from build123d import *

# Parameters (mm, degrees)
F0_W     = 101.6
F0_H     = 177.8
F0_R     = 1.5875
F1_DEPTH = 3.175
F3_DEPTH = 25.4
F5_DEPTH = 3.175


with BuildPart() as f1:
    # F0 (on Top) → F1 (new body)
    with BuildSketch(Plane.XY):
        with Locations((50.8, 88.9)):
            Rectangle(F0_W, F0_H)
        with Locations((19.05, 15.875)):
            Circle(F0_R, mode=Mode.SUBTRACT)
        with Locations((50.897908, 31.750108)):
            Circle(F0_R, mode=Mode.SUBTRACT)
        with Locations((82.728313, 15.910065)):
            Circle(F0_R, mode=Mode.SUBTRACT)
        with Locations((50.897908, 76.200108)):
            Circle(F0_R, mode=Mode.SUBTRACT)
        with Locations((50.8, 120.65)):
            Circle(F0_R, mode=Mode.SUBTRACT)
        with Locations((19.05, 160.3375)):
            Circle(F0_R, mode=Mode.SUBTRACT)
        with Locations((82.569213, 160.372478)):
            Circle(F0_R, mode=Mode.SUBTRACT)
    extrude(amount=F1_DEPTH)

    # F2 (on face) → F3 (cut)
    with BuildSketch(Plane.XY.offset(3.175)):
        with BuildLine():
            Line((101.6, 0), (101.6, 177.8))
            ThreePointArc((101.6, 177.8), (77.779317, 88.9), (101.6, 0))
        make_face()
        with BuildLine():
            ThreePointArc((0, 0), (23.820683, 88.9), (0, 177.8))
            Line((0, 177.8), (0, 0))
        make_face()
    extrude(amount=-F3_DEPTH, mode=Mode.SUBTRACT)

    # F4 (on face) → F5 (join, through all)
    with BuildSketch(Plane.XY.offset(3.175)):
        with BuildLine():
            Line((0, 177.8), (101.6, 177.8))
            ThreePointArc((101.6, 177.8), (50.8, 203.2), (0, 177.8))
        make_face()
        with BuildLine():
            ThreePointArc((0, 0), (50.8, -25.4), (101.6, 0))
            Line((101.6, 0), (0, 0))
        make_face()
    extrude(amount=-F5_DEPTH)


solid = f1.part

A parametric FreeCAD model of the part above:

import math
import FreeCAD as App
import Part
import Sketcher
Q = App.Units.Quantity


def add_polygon(sketch, points):
    """Adds a closed chain of lines whose ends are joined by coincident constraints."""
    first, n = sketch.GeometryCount, len(points)
    for a, b in zip(points, points[1:] + points[:1]):
        sketch.addGeometry(Part.LineSegment(App.Vector(*a, 0), App.Vector(*b, 0)), False)
    for i in range(n):
        sketch.addConstraint(Sketcher.Constraint("Coincident", first + i, 2, first + (i + 1) % n, 1))

doc = App.newDocument("Part")
body = doc.addObject("PartDesign::Body", "Body")

sketch1 = body.newObject("Sketcher::SketchObject", "Sketch")
sketch1.AttachmentSupport = (doc.getObject("XY_Plane"), [""])
sketch1.MapMode = "FlatFace"
add_polygon(sketch1, [(0, 177.8), (0, 0), (101.6, 0), (101.6, 177.8)])
sketch1.addGeometry(Part.Circle(App.Vector(19.1, 15.9, 0), App.Vector(0, 0, 1), 1.6), False)
sketch1.addGeometry(Part.Circle(App.Vector(50.9, 31.8, 0), App.Vector(0, 0, 1), 1.6), False)
sketch1.addGeometry(Part.Circle(App.Vector(82.7, 15.9, 0), App.Vector(0, 0, 1), 1.6), False)
sketch1.addGeometry(Part.Circle(App.Vector(50.9, 76.2, 0), App.Vector(0, 0, 1), 1.6), False)
sketch1.addGeometry(Part.Circle(App.Vector(50.8, 120.7, 0), App.Vector(0, 0, 1), 1.6), False)
sketch1.addGeometry(Part.Circle(App.Vector(19.1, 160.3, 0), App.Vector(0, 0, 1), 1.6), False)
sketch1.addGeometry(Part.Circle(App.Vector(82.6, 160.4, 0), App.Vector(0, 0, 1), 1.6), False)
sketch1.addConstraint(Sketcher.Constraint("Vertical", 0))
sketch1.addConstraint(Sketcher.Constraint("Horizontal", 1))
sketch1.addConstraint(Sketcher.Constraint("Vertical", 2))
sketch1.addConstraint(Sketcher.Constraint("Horizontal", 3))
sketch1.addConstraint(Sketcher.Constraint("Coincident", 0, 2, -1, 1))
sketch1.addConstraint(Sketcher.Constraint("Equal", 4, 5))
sketch1.addConstraint(Sketcher.Constraint("Equal", 5, 6))
sketch1.addConstraint(Sketcher.Constraint("Equal", 6, 7))
sketch1.addConstraint(Sketcher.Constraint("Equal", 7, 8))
sketch1.addConstraint(Sketcher.Constraint("Equal", 8, 9))
sketch1.addConstraint(Sketcher.Constraint("Equal", 9, 10))
sketch1.addConstraint(Sketcher.Constraint("Vertical", 5, 3, 7, 3))
sketch1.addConstraint(Sketcher.Constraint("Vertical", 4, 3, 9, 3))
sketch1.addConstraint(Sketcher.Constraint("DistanceX", 1, 1, 1, 2, Q("4 in")))
sketch1.addConstraint(Sketcher.Constraint("DistanceY", 0, 2, 0, 1, Q("7 in")))
sketch1.addConstraint(Sketcher.Constraint("Diameter", 4, Q("0.125 in")))
sketch1.addConstraint(Sketcher.Constraint("DistanceX", -1, 1, 8, 3, Q("2 in")))
sketch1.addConstraint(Sketcher.Constraint("DistanceX", -1, 1, 4, 3, Q("0.75 in")))
sketch1.addConstraint(Sketcher.Constraint("DistanceY", -1, 1, 8, 3, Q("4.75 in")))
sketch1.addConstraint(Sketcher.Constraint("DistanceY", 5, 3, 7, 3, Q("1.75 in")))
sketch1.addConstraint(Sketcher.Constraint("DistanceY", -1, 1, 4, 3, Q("0.625 in")))
sketch1.addConstraint(Sketcher.Constraint("DistanceY", -1, 1, 9, 3, Q("6.3125 in")))
sketch1.addConstraint(Sketcher.Constraint("DistanceX", 10, 3, 6, 3, 0.1591))
sketch1.addConstraint(Sketcher.Constraint("DistanceY", -1, 1, 5, 3, 31.750108))
sketch1.addConstraint(Sketcher.Constraint("DistanceY", -1, 1, 10, 3, 160.372478))
sketch1.addConstraint(Sketcher.Constraint("DistanceX", 4, 3, 5, 3, 31.847908))
sketch1.addConstraint(Sketcher.Constraint("DistanceX", -1, 1, 6, 3, 82.728313))
sketch1.addConstraint(Sketcher.Constraint("DistanceY", -1, 1, 6, 3, 15.910065))
pad1 = body.newObject("PartDesign::Pad", "Pad")
pad1.Profile = sketch1
pad1.Length = Q("0.125 in")

sketch2 = body.newObject("Sketcher::SketchObject", "Sketch001")
sketch2.AttachmentSupport = (doc.getObject("XY_Plane"), [""])
sketch2.MapMode = "FlatFace"
sketch2.AttachmentOffset = App.Placement(App.Vector(0, 0, 0.125 * 25.4), App.Rotation())
sketch2.addGeometry(Part.LineSegment(App.Vector(102, 0, 0), App.Vector(102, 178, 0)), False)
sketch2.addGeometry(Part.ArcOfCircle(Part.Circle(App.Vector(256, 89, 0), App.Vector(0, 0, 1), 178), math.radians(150), math.radians(210)), False)
sketch2.addGeometry(Part.ArcOfCircle(Part.Circle(App.Vector(-154, 89, 0), App.Vector(0, 0, 1), 178), math.radians(-30), math.radians(30)), False)
sketch2.addGeometry(Part.LineSegment(App.Vector(0, 178, 0), App.Vector(0, 0, 0)), False)
sketch2.addConstraint(Sketcher.Constraint("Coincident", 0, 1, 1, 2))
sketch2.addConstraint(Sketcher.Constraint("Coincident", 1, 1, 0, 2))
sketch2.addConstraint(Sketcher.Constraint("Coincident", 2, 1, 3, 2))
sketch2.addConstraint(Sketcher.Constraint("Coincident", 3, 1, 2, 2))
sketch2.addConstraint(Sketcher.Constraint("Vertical", 0))
sketch2.addConstraint(Sketcher.Constraint("Vertical", 3))
sketch2.addConstraint(Sketcher.Constraint("Coincident", 2, 1, -1, 1))
sketch2.addConstraint(Sketcher.Constraint("Equal", 1, 2))
sketch2.addConstraint(Sketcher.Constraint("PointOnObject", 0, 1, -1))
sketch2.addConstraint(Sketcher.Constraint("Horizontal", 1, 3, 2, 3))
sketch2.addConstraint(Sketcher.Constraint("Radius", 1, Q("7.0000001 in")))
sketch2.addConstraint(Sketcher.Constraint("DistanceY", 0, 1, 0, 2, Q("7 in")))
sketch2.addConstraint(Sketcher.Constraint("DistanceX", -1, 1, 0, 1, Q("4 in")))
pocket1 = body.newObject("PartDesign::Pocket", "Pocket")
pocket1.Profile = sketch2
pocket1.Length = Q("1 in")

sketch3 = body.newObject("Sketcher::SketchObject", "Sketch002")
sketch3.AttachmentSupport = (doc.getObject("XY_Plane"), [""])
sketch3.MapMode = "FlatFace"
sketch3.AttachmentOffset = App.Placement(App.Vector(0, 0, 0.125 * 25.4), App.Rotation())
sketch3.addGeometry(Part.LineSegment(App.Vector(0, 178, 0), App.Vector(102, 178, 0)), False)
sketch3.addGeometry(Part.ArcOfCircle(Part.Circle(App.Vector(51, 140, 0), App.Vector(0, 0, 1), 64), math.radians(37), math.radians(143)), False)
sketch3.addGeometry(Part.ArcOfCircle(Part.Circle(App.Vector(51, 38, 0), App.Vector(0, 0, 1), 64), math.radians(-143), math.radians(-37)), False)
sketch3.addGeometry(Part.LineSegment(App.Vector(102, 0, 0), App.Vector(0, 0, 0)), False)
sketch3.addConstraint(Sketcher.Constraint("Coincident", 0, 1, 1, 2))
sketch3.addConstraint(Sketcher.Constraint("Coincident", 1, 1, 0, 2))
sketch3.addConstraint(Sketcher.Constraint("Coincident", 2, 1, 3, 2))
sketch3.addConstraint(Sketcher.Constraint("Coincident", 3, 1, 2, 2))
sketch3.addConstraint(Sketcher.Constraint("Horizontal", 0))
sketch3.addConstraint(Sketcher.Constraint("Horizontal", 3))
sketch3.addConstraint(Sketcher.Constraint("Coincident", 2, 1, -1, 1))
sketch3.addConstraint(Sketcher.Constraint("Equal", 1, 2))
sketch3.addConstraint(Sketcher.Constraint("PointOnObject", 0, 1, -2))
sketch3.addConstraint(Sketcher.Constraint("Vertical", 1, 3, 2, 3))
sketch3.addConstraint(Sketcher.Constraint("Radius", 1, Q("2.5 in")))
sketch3.addConstraint(Sketcher.Constraint("DistanceX", 0, 1, 0, 2, Q("4 in")))
sketch3.addConstraint(Sketcher.Constraint("DistanceY", -1, 1, 0, 1, Q("7 in")))
pad2 = body.newObject("PartDesign::Pad", "Pad001")
pad2.Profile = sketch3
pad2.Type = "UpToLast"
pad2.Reversed = True

doc.recompute()
